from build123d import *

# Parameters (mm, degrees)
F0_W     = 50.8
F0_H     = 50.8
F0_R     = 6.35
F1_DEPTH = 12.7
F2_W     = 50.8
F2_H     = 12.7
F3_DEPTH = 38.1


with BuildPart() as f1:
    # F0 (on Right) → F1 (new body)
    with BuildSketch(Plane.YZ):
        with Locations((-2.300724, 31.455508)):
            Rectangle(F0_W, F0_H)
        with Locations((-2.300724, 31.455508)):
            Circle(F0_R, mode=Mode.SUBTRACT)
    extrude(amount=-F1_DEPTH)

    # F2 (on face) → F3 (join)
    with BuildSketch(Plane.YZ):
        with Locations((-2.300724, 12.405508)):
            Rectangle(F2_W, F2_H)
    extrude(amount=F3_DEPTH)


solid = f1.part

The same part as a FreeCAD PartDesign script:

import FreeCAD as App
import Part
import Sketcher
from FreeCAD import Vector
Q = App.Units.Quantity


def add_polygon(sketch, points):
    """Adds a closed chain of lines whose ends are joined by coincident constraints."""
    first, n = sketch.GeometryCount, len(points)
    for a, b in zip(points, points[1:] + points[:1]):
        sketch.addGeometry(Part.LineSegment(App.Vector(*a, 0), App.Vector(*b, 0)), False)
    for i in range(n):
        sketch.addConstraint(Sketcher.Constraint("Coincident", first + i, 2, first + (i + 1) % n, 1))

doc = App.newDocument("Part")
body = doc.addObject("PartDesign::Body", "Body")

sketch1 = body.newObject("Sketcher::SketchObject", "Sketch")
sketch1.AttachmentSupport = (doc.getObject("YZ_Plane"), [""])
sketch1.MapMode = "FlatFace"
add_polygon(sketch1, [(-27.700724, 56.855508), (-27.700724, 6.055508), (23.099276, 6.055508), (23.099276, 56.855508)])
sketch1.addGeometry(Part.Circle(Vector(-2.300724, 31.455508, 0), Vector(0, 0, 1), 6.35), False)
sketch1.addConstraint([
    Sketcher.Constraint("Vertical", 0),
    Sketcher.Constraint("Horizontal", 1),
    Sketcher.Constraint("Vertical", 2),
    Sketcher.Constraint("Horizontal", 3),
    Sketcher.Constraint("Equal", 3, 0),
    Sketcher.Constraint("Diameter", 4, Q("0.5 in")),
    Sketcher.Constraint("DistanceX", 1, 1, 1, 2, Q("2 in")),
    Sketcher.Constraint("DistanceX", 0, 2, 4, 3, Q("1 in")),
    Sketcher.Constraint("DistanceY", 0, 2, 4, 3, Q("1 in")),
    Sketcher.Constraint("DistanceX", 4, 3, -1, 1, 2.300724),
    Sketcher.Constraint("DistanceY", -1, 1, 4, 3, 31.455508),
])
pad1 = body.newObject("PartDesign::Pad", "Pad")
pad1.Profile = sketch1
pad1.Length = Q("0.5 in")
pad1.Reversed = True

sketch2 = body.newObject("Sketcher::SketchObject", "Sketch001")
sketch2.AttachmentSupport = (doc.getObject("YZ_Plane"), [""])
sketch2.MapMode = "FlatFace"
add_polygon(sketch2, [(-27.700724, 18.755508), (-27.700724, 6.055508), (23.099276, 6.055508), (23.099276, 18.755508)])
sketch2.addConstraint([
    Sketcher.Constraint("Vertical", 0),
    Sketcher.Constraint("Horizontal", 1),
    Sketcher.Constraint("Vertical", 2),
    Sketcher.Constraint("Horizontal", 3),
    Sketcher.Constraint("DistanceX", 1, 1, 1, 2, Q("2 in")),
    Sketcher.Constraint("DistanceY", 0, 2, 0, 1, Q("0.5 in")),
    Sketcher.Constraint("DistanceX", 0, 2, -1, 1, 27.700724),
    Sketcher.Constraint("DistanceY", -1, 1, 0, 2, 6.055508),
])
pad2 = body.newObject("PartDesign::Pad", "Pad001")
pad2.Profile = sketch2
pad2.Length = Q("1.5 in")

doc.recompute()
